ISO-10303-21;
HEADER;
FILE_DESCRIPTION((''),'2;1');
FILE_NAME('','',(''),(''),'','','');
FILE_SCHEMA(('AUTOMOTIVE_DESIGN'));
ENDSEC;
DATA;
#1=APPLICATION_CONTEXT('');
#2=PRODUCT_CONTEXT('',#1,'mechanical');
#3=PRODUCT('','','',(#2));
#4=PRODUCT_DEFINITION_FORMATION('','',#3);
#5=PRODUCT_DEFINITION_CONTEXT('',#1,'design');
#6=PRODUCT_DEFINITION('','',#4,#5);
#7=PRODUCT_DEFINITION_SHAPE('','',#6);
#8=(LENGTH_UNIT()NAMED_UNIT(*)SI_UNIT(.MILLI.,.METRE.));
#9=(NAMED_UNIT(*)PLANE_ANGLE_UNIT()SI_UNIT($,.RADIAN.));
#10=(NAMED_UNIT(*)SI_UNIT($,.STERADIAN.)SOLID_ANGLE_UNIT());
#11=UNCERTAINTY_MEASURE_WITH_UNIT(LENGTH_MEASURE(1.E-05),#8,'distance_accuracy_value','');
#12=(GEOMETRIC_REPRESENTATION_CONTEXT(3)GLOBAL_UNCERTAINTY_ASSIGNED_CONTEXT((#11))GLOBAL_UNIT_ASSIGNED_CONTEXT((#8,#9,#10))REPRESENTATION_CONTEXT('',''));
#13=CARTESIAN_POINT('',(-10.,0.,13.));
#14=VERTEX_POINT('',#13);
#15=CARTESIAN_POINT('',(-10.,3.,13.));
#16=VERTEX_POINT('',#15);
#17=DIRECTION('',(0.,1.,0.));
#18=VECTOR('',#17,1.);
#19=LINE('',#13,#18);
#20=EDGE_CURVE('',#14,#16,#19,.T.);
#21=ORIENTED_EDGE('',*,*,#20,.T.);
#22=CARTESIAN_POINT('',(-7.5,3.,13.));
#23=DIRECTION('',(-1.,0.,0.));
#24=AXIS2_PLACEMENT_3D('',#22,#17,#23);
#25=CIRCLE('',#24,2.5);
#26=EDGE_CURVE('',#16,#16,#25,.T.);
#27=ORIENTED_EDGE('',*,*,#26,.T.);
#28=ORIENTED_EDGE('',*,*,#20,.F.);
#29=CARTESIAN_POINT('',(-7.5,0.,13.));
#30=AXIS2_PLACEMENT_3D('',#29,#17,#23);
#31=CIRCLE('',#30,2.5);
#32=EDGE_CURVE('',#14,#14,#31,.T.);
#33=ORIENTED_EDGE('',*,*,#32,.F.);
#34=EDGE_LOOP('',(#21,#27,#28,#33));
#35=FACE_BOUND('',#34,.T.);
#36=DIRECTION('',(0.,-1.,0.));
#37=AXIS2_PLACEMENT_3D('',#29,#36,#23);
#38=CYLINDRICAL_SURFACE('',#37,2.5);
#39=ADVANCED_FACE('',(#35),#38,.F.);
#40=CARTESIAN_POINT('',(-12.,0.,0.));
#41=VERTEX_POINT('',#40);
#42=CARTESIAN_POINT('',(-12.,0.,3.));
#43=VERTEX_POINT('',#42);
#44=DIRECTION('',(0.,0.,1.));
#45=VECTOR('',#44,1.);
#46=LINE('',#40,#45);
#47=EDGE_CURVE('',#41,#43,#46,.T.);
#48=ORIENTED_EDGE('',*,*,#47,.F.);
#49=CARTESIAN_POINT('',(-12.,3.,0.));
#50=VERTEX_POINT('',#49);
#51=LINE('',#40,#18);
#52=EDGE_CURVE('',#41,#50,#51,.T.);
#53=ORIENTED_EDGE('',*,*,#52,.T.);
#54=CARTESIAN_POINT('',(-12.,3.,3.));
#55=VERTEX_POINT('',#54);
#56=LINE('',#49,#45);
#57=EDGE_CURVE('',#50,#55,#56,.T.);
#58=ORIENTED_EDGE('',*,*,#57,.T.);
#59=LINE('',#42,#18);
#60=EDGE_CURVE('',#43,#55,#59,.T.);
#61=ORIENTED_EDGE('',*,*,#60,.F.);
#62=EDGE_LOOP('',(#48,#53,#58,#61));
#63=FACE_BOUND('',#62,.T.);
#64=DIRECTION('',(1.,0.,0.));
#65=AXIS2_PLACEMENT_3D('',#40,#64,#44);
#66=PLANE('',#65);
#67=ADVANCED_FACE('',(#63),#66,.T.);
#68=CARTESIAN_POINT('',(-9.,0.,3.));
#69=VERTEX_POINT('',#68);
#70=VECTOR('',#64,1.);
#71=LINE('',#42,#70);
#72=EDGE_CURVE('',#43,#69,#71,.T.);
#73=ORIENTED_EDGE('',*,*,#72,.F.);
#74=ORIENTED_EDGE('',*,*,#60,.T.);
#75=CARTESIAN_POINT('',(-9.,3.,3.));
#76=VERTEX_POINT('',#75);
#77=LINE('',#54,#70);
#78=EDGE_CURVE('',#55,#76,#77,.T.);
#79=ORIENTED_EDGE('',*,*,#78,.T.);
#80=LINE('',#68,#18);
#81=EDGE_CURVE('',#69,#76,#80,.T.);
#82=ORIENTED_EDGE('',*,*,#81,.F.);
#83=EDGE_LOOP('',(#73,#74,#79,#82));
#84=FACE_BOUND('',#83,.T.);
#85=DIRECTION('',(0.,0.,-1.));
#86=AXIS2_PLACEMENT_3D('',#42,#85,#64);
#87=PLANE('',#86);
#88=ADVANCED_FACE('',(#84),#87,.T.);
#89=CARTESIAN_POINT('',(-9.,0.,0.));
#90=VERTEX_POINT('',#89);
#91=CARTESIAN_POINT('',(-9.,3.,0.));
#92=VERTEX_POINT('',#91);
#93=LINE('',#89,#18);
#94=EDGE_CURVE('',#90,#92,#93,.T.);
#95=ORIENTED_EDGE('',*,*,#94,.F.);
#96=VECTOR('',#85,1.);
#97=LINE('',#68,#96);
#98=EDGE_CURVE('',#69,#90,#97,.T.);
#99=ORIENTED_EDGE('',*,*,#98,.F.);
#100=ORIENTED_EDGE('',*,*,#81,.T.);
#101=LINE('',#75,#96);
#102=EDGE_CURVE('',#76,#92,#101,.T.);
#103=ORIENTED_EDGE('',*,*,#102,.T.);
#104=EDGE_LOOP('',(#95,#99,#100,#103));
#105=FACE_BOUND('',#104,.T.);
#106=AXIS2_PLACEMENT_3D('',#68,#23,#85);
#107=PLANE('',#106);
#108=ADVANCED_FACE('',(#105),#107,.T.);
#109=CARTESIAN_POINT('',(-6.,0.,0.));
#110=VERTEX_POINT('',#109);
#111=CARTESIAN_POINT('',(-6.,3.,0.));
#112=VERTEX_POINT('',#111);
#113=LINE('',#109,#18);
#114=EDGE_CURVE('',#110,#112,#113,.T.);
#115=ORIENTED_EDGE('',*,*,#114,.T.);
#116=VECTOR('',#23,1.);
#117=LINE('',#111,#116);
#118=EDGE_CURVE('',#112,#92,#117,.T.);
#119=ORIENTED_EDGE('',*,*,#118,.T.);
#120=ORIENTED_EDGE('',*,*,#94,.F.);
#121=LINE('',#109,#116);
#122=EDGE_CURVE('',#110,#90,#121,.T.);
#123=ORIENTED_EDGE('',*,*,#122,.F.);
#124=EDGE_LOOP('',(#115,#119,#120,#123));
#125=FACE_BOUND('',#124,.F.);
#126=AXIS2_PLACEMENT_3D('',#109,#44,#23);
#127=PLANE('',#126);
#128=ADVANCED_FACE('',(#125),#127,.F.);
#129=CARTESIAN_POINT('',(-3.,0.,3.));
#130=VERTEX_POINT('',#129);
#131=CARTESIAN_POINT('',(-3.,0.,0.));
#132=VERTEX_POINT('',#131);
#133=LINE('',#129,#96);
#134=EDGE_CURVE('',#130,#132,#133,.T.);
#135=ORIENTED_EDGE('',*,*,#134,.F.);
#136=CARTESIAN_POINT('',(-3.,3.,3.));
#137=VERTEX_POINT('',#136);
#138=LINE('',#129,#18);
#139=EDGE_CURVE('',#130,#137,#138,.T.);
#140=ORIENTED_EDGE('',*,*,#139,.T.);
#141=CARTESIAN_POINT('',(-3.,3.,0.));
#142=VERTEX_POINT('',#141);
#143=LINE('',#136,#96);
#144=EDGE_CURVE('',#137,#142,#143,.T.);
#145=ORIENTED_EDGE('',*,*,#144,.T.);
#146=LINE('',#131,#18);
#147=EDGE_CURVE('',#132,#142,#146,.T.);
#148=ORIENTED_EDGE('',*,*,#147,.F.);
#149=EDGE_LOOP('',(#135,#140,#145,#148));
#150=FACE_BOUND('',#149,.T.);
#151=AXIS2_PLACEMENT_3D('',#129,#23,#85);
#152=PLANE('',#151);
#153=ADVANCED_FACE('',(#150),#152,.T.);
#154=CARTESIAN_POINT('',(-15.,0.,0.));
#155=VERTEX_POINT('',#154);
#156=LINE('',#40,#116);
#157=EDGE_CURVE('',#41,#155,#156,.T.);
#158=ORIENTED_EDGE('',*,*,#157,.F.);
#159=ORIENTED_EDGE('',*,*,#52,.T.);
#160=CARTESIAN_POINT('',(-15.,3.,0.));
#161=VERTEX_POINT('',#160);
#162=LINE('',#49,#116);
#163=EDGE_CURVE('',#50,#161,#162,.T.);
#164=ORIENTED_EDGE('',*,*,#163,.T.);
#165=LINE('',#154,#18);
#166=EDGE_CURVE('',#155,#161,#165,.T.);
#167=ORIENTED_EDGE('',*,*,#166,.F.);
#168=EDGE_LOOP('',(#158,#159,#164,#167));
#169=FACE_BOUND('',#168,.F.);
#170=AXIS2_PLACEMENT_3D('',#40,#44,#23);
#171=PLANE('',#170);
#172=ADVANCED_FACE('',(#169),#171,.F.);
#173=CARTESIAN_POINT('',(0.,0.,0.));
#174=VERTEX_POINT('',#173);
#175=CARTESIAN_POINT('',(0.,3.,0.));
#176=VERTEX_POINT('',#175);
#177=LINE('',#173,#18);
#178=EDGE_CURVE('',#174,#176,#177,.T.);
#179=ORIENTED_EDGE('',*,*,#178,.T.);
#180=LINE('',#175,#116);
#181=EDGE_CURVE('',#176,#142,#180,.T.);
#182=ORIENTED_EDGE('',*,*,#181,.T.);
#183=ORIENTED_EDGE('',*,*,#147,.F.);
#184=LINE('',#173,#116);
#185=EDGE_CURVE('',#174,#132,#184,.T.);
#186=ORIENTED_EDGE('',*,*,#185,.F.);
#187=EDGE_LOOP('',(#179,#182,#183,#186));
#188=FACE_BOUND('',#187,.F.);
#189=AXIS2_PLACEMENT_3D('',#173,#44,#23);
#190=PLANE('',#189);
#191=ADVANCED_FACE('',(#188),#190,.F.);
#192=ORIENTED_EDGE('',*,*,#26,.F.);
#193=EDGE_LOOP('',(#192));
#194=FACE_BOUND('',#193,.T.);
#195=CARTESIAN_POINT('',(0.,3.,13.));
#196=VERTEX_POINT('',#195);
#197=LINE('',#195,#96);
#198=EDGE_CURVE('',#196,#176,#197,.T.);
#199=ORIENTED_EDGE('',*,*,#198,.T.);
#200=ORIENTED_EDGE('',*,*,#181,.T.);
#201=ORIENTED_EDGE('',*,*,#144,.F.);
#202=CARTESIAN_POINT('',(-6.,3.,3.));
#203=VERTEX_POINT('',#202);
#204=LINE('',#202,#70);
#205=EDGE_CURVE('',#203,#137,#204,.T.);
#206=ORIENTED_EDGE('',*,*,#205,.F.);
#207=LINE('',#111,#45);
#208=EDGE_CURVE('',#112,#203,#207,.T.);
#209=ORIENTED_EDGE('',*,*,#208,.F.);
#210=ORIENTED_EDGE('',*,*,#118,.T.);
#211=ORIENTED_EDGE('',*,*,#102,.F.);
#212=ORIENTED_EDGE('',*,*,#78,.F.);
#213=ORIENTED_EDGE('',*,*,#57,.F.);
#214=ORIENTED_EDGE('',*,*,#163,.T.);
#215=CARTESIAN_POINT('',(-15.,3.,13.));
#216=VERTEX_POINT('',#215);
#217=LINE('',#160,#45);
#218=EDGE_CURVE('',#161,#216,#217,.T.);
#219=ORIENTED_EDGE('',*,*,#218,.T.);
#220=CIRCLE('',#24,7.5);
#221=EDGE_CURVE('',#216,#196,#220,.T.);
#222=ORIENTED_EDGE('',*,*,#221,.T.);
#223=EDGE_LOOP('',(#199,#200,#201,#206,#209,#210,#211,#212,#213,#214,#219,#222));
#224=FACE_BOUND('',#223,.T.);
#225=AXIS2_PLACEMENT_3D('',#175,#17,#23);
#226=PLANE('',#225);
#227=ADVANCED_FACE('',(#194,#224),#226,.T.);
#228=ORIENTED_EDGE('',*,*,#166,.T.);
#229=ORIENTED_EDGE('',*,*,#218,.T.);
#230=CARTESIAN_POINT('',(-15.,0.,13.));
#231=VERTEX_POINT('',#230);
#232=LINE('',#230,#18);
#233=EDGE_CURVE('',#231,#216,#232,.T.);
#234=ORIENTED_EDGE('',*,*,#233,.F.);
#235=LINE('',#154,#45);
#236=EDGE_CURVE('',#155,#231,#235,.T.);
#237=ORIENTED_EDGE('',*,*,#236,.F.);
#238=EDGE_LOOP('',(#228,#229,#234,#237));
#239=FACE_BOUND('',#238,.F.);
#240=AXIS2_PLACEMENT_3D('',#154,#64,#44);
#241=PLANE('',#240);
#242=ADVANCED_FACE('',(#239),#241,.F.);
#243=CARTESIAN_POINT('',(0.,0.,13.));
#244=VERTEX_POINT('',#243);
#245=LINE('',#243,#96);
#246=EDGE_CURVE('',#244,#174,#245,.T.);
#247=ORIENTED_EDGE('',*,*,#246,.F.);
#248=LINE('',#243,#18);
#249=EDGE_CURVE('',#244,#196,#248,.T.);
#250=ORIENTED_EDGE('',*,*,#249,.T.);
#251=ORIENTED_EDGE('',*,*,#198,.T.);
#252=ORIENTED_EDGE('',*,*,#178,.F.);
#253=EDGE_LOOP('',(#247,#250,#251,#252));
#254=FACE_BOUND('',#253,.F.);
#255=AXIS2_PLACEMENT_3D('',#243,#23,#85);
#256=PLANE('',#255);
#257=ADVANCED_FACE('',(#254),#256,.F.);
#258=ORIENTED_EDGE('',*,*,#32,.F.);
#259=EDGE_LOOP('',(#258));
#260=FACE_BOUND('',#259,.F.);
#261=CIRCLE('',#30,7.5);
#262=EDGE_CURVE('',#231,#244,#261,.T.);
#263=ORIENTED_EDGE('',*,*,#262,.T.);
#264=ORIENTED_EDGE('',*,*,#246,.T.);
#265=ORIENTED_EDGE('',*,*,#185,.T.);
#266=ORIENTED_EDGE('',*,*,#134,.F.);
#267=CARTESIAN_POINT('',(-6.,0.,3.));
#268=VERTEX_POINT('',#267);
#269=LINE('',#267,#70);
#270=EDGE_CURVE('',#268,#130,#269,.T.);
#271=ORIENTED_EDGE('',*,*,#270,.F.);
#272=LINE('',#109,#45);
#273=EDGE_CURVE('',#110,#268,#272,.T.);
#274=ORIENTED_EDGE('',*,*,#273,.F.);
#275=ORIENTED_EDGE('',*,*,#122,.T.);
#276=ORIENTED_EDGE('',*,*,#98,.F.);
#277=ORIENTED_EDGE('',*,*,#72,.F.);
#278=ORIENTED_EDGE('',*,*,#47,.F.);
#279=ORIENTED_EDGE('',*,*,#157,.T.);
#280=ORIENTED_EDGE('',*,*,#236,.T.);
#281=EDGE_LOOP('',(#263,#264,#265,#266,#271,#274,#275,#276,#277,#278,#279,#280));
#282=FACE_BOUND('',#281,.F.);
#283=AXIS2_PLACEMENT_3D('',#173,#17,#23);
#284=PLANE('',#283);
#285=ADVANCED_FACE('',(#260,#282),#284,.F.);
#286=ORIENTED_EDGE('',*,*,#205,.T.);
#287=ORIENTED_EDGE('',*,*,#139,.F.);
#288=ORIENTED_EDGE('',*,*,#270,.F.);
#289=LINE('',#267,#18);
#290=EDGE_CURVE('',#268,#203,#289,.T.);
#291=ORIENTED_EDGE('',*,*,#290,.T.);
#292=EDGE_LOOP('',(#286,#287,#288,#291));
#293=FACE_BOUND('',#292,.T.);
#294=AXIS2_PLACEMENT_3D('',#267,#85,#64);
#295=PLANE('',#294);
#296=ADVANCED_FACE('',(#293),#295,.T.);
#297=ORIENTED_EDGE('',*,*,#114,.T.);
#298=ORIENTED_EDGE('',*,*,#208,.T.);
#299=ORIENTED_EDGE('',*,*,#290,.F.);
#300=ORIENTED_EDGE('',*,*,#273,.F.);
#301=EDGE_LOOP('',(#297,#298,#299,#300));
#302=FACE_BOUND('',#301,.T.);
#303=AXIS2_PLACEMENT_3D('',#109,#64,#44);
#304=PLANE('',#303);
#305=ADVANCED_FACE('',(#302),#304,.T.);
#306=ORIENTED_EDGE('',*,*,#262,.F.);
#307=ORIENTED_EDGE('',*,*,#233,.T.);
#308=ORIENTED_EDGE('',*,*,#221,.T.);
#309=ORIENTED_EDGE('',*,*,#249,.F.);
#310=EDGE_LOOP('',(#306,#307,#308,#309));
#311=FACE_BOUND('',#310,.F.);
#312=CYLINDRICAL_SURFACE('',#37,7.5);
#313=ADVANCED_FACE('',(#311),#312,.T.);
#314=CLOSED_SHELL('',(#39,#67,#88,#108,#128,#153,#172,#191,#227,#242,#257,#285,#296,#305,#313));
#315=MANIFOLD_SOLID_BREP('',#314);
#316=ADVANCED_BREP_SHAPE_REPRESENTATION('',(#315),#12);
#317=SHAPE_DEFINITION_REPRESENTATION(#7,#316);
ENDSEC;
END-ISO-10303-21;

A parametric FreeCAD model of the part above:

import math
import FreeCAD as App
import Part
import Sketcher
from FreeCAD import Vector

doc = App.newDocument("Part")
body = doc.addObject("PartDesign::Body", "Body")

# Sketch on XZ plane
sketch1 = body.newObject("Sketcher::SketchObject", "Sketch")
sketch1.AttachmentSupport = (doc.getObject("XZ_Plane"), [""])
sketch1.MapMode = "FlatFace"
sketch1.addGeometry([
    Part.LineSegment(Vector(-12, 0, 0), Vector(-15, 0, 0)),  # 0
    Part.LineSegment(Vector(-15, 0, 0), Vector(-15, 13, 0)),  # 1
    Part.ArcOfCircle(Part.Circle(Vector(-7.5, 13, 0), Vector(0, 0, 1), 7.5), math.radians(0), math.radians(180)),  # 2
    Part.LineSegment(Vector(0, 13, 0), Vector(0, 0, 0)),  # 3
    Part.LineSegment(Vector(0, 0, 0), Vector(-3, 0, 0)),  # 4
    Part.LineSegment(Vector(-3, 0, 0), Vector(-3, 3, 0)),  # 5
    Part.LineSegment(Vector(-3, 3, 0), Vector(-6, 3, 0)),  # 6
    Part.LineSegment(Vector(-6, 3, 0), Vector(-6, 0, 0)),  # 7
    Part.LineSegment(Vector(-6, 0, 0), Vector(-9, 0, 0)),  # 8
    Part.LineSegment(Vector(-9, 0, 0), Vector(-9, 3, 0)),  # 9
    Part.LineSegment(Vector(-9, 3, 0), Vector(-12, 3, 0)),  # 10
    Part.LineSegment(Vector(-12, 3, 0), Vector(-12, 0, 0)),  # 11
    Part.Circle(Vector(-7.5, 13, 0), Vector(0, 0, 1), 2.5),  # 12
], False)
sketch1.addConstraint([
    Sketcher.Constraint("Coincident", 0, 2, 1, 1),
    Sketcher.Constraint("Tangent", 1, 2, 2, 2),
    Sketcher.Constraint("Tangent", 2, 1, 3, 1),
    Sketcher.Constraint("Coincident", 3, 2, 4, 1),
    Sketcher.Constraint("Coincident", 4, 2, 5, 1),
    Sketcher.Constraint("Coincident", 5, 2, 6, 1),
    Sketcher.Constraint("Coincident", 6, 2, 7, 1),
    Sketcher.Constraint("Coincident", 7, 2, 8, 1),
    Sketcher.Constraint("Coincident", 8, 2, 9, 1),
    Sketcher.Constraint("Coincident", 9, 2, 10, 1),
    Sketcher.Constraint("Coincident", 10, 2, 11, 1),
    Sketcher.Constraint("Coincident", 11, 2, 0, 1),
    Sketcher.Constraint("Horizontal", 0),
    Sketcher.Constraint("Vertical", 1),
    Sketcher.Constraint("Vertical", 3),
    Sketcher.Constraint("Horizontal", 4),
    Sketcher.Constraint("Vertical", 5),
    Sketcher.Constraint("Horizontal", 6),
    Sketcher.Constraint("Vertical", 7),
    Sketcher.Constraint("Horizontal", 8),
    Sketcher.Constraint("Vertical", 9),
    Sketcher.Constraint("Horizontal", 10),
    Sketcher.Constraint("Vertical", 11),
    Sketcher.Constraint("Coincident", 3, 2, -1, 1),
    Sketcher.Constraint("Coincident", 12, 3, 2, 3),
    Sketcher.Constraint("PointOnObject", 0, 2, -1),
    Sketcher.Constraint("PointOnObject", 7, 2, -1),
    Sketcher.Constraint("Horizontal", 6, 2, 9, 2),
    Sketcher.Constraint("Equal", 0, 4),
    Sketcher.Constraint("Equal", 4, 6),
    Sketcher.Constraint("Equal", 6, 8),
    Sketcher.Constraint("Equal", 8, 10),
    Sketcher.Constraint("Equal", 10, 5),
    Sketcher.Constraint("Diameter", 12, 5.0),
    Sketcher.Constraint("Radius", 2, 7.5),
    Sketcher.Constraint("DistanceY", 1, 1, 1, 2, 13.0),
])
pad1 = body.newObject("PartDesign::Pad", "Pad")
pad1.Profile = sketch1
pad1.Length = 3
pad1.Reversed = True

doc.recompute()
